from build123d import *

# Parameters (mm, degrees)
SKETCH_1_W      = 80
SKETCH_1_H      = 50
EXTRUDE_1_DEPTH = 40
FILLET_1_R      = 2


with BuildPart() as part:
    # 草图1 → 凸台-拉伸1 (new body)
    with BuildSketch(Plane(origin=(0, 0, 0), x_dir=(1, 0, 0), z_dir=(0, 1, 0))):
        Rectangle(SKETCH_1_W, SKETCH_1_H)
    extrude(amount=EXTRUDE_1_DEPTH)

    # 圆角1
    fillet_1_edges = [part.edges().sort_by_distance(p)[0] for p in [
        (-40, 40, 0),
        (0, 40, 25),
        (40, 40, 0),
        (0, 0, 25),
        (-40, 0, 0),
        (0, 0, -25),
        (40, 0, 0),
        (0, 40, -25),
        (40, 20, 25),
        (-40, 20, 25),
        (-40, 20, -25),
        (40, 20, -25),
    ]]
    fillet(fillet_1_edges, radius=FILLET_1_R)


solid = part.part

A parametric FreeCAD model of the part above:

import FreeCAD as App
import Part
import Sketcher

V = App.Vector
Q = App.Units.Quantity


def add_polygon(sketch, points):
    """Adds a closed chain of lines whose ends are joined by coincident constraints."""
    first, n = sketch.GeometryCount, len(points)
    for a, b in zip(points, points[1:] + points[:1]):
        sketch.addGeometry(Part.LineSegment(App.Vector(*a, 0), App.Vector(*b, 0)), False)
    for i in range(n):
        sketch.addConstraint(Sketcher.Constraint("Coincident", first + i, 2, first + (i + 1) % n, 1))

doc = App.newDocument("Part")
body = doc.addObject("PartDesign::Body", "Body")

# Sketch on XZ plane
sketch1 = body.newObject("Sketcher::SketchObject", "Sketch")
sketch1.AttachmentSupport = (doc.getObject("XZ_Plane"), [""])
sketch1.MapMode = "FlatFace"
add_polygon(sketch1, [(-40, -25), (-40, 25), (40, 25), (40, -25)])  # lines 0-3
sketch1.addConstraint([
    Sketcher.Constraint("Vertical", 0),
    Sketcher.Constraint("Horizontal", 1),
    Sketcher.Constraint("Vertical", 2),
    Sketcher.Constraint("Horizontal", 3),
    Sketcher.Constraint("Symmetric", 0, 2, 2, 2, -1, 1),
    Sketcher.Constraint("DistanceX", 1, 1, 1, 2, Q("80 mm")),
    Sketcher.Constraint("DistanceY", 0, 1, 0, 2, Q("50 mm")),
])
pad1 = body.newObject("PartDesign::Pad", "Pad")
pad1.Profile = sketch1
pad1.Length = 40
pad1.Reversed = True
doc.recompute()

fillet = body.newObject("PartDesign::Fillet", "Fillet")
fillet.Base = (pad1, ["Edge1"])
fillet.UseAllEdges = True
fillet.Radius = 2

doc.recompute()
